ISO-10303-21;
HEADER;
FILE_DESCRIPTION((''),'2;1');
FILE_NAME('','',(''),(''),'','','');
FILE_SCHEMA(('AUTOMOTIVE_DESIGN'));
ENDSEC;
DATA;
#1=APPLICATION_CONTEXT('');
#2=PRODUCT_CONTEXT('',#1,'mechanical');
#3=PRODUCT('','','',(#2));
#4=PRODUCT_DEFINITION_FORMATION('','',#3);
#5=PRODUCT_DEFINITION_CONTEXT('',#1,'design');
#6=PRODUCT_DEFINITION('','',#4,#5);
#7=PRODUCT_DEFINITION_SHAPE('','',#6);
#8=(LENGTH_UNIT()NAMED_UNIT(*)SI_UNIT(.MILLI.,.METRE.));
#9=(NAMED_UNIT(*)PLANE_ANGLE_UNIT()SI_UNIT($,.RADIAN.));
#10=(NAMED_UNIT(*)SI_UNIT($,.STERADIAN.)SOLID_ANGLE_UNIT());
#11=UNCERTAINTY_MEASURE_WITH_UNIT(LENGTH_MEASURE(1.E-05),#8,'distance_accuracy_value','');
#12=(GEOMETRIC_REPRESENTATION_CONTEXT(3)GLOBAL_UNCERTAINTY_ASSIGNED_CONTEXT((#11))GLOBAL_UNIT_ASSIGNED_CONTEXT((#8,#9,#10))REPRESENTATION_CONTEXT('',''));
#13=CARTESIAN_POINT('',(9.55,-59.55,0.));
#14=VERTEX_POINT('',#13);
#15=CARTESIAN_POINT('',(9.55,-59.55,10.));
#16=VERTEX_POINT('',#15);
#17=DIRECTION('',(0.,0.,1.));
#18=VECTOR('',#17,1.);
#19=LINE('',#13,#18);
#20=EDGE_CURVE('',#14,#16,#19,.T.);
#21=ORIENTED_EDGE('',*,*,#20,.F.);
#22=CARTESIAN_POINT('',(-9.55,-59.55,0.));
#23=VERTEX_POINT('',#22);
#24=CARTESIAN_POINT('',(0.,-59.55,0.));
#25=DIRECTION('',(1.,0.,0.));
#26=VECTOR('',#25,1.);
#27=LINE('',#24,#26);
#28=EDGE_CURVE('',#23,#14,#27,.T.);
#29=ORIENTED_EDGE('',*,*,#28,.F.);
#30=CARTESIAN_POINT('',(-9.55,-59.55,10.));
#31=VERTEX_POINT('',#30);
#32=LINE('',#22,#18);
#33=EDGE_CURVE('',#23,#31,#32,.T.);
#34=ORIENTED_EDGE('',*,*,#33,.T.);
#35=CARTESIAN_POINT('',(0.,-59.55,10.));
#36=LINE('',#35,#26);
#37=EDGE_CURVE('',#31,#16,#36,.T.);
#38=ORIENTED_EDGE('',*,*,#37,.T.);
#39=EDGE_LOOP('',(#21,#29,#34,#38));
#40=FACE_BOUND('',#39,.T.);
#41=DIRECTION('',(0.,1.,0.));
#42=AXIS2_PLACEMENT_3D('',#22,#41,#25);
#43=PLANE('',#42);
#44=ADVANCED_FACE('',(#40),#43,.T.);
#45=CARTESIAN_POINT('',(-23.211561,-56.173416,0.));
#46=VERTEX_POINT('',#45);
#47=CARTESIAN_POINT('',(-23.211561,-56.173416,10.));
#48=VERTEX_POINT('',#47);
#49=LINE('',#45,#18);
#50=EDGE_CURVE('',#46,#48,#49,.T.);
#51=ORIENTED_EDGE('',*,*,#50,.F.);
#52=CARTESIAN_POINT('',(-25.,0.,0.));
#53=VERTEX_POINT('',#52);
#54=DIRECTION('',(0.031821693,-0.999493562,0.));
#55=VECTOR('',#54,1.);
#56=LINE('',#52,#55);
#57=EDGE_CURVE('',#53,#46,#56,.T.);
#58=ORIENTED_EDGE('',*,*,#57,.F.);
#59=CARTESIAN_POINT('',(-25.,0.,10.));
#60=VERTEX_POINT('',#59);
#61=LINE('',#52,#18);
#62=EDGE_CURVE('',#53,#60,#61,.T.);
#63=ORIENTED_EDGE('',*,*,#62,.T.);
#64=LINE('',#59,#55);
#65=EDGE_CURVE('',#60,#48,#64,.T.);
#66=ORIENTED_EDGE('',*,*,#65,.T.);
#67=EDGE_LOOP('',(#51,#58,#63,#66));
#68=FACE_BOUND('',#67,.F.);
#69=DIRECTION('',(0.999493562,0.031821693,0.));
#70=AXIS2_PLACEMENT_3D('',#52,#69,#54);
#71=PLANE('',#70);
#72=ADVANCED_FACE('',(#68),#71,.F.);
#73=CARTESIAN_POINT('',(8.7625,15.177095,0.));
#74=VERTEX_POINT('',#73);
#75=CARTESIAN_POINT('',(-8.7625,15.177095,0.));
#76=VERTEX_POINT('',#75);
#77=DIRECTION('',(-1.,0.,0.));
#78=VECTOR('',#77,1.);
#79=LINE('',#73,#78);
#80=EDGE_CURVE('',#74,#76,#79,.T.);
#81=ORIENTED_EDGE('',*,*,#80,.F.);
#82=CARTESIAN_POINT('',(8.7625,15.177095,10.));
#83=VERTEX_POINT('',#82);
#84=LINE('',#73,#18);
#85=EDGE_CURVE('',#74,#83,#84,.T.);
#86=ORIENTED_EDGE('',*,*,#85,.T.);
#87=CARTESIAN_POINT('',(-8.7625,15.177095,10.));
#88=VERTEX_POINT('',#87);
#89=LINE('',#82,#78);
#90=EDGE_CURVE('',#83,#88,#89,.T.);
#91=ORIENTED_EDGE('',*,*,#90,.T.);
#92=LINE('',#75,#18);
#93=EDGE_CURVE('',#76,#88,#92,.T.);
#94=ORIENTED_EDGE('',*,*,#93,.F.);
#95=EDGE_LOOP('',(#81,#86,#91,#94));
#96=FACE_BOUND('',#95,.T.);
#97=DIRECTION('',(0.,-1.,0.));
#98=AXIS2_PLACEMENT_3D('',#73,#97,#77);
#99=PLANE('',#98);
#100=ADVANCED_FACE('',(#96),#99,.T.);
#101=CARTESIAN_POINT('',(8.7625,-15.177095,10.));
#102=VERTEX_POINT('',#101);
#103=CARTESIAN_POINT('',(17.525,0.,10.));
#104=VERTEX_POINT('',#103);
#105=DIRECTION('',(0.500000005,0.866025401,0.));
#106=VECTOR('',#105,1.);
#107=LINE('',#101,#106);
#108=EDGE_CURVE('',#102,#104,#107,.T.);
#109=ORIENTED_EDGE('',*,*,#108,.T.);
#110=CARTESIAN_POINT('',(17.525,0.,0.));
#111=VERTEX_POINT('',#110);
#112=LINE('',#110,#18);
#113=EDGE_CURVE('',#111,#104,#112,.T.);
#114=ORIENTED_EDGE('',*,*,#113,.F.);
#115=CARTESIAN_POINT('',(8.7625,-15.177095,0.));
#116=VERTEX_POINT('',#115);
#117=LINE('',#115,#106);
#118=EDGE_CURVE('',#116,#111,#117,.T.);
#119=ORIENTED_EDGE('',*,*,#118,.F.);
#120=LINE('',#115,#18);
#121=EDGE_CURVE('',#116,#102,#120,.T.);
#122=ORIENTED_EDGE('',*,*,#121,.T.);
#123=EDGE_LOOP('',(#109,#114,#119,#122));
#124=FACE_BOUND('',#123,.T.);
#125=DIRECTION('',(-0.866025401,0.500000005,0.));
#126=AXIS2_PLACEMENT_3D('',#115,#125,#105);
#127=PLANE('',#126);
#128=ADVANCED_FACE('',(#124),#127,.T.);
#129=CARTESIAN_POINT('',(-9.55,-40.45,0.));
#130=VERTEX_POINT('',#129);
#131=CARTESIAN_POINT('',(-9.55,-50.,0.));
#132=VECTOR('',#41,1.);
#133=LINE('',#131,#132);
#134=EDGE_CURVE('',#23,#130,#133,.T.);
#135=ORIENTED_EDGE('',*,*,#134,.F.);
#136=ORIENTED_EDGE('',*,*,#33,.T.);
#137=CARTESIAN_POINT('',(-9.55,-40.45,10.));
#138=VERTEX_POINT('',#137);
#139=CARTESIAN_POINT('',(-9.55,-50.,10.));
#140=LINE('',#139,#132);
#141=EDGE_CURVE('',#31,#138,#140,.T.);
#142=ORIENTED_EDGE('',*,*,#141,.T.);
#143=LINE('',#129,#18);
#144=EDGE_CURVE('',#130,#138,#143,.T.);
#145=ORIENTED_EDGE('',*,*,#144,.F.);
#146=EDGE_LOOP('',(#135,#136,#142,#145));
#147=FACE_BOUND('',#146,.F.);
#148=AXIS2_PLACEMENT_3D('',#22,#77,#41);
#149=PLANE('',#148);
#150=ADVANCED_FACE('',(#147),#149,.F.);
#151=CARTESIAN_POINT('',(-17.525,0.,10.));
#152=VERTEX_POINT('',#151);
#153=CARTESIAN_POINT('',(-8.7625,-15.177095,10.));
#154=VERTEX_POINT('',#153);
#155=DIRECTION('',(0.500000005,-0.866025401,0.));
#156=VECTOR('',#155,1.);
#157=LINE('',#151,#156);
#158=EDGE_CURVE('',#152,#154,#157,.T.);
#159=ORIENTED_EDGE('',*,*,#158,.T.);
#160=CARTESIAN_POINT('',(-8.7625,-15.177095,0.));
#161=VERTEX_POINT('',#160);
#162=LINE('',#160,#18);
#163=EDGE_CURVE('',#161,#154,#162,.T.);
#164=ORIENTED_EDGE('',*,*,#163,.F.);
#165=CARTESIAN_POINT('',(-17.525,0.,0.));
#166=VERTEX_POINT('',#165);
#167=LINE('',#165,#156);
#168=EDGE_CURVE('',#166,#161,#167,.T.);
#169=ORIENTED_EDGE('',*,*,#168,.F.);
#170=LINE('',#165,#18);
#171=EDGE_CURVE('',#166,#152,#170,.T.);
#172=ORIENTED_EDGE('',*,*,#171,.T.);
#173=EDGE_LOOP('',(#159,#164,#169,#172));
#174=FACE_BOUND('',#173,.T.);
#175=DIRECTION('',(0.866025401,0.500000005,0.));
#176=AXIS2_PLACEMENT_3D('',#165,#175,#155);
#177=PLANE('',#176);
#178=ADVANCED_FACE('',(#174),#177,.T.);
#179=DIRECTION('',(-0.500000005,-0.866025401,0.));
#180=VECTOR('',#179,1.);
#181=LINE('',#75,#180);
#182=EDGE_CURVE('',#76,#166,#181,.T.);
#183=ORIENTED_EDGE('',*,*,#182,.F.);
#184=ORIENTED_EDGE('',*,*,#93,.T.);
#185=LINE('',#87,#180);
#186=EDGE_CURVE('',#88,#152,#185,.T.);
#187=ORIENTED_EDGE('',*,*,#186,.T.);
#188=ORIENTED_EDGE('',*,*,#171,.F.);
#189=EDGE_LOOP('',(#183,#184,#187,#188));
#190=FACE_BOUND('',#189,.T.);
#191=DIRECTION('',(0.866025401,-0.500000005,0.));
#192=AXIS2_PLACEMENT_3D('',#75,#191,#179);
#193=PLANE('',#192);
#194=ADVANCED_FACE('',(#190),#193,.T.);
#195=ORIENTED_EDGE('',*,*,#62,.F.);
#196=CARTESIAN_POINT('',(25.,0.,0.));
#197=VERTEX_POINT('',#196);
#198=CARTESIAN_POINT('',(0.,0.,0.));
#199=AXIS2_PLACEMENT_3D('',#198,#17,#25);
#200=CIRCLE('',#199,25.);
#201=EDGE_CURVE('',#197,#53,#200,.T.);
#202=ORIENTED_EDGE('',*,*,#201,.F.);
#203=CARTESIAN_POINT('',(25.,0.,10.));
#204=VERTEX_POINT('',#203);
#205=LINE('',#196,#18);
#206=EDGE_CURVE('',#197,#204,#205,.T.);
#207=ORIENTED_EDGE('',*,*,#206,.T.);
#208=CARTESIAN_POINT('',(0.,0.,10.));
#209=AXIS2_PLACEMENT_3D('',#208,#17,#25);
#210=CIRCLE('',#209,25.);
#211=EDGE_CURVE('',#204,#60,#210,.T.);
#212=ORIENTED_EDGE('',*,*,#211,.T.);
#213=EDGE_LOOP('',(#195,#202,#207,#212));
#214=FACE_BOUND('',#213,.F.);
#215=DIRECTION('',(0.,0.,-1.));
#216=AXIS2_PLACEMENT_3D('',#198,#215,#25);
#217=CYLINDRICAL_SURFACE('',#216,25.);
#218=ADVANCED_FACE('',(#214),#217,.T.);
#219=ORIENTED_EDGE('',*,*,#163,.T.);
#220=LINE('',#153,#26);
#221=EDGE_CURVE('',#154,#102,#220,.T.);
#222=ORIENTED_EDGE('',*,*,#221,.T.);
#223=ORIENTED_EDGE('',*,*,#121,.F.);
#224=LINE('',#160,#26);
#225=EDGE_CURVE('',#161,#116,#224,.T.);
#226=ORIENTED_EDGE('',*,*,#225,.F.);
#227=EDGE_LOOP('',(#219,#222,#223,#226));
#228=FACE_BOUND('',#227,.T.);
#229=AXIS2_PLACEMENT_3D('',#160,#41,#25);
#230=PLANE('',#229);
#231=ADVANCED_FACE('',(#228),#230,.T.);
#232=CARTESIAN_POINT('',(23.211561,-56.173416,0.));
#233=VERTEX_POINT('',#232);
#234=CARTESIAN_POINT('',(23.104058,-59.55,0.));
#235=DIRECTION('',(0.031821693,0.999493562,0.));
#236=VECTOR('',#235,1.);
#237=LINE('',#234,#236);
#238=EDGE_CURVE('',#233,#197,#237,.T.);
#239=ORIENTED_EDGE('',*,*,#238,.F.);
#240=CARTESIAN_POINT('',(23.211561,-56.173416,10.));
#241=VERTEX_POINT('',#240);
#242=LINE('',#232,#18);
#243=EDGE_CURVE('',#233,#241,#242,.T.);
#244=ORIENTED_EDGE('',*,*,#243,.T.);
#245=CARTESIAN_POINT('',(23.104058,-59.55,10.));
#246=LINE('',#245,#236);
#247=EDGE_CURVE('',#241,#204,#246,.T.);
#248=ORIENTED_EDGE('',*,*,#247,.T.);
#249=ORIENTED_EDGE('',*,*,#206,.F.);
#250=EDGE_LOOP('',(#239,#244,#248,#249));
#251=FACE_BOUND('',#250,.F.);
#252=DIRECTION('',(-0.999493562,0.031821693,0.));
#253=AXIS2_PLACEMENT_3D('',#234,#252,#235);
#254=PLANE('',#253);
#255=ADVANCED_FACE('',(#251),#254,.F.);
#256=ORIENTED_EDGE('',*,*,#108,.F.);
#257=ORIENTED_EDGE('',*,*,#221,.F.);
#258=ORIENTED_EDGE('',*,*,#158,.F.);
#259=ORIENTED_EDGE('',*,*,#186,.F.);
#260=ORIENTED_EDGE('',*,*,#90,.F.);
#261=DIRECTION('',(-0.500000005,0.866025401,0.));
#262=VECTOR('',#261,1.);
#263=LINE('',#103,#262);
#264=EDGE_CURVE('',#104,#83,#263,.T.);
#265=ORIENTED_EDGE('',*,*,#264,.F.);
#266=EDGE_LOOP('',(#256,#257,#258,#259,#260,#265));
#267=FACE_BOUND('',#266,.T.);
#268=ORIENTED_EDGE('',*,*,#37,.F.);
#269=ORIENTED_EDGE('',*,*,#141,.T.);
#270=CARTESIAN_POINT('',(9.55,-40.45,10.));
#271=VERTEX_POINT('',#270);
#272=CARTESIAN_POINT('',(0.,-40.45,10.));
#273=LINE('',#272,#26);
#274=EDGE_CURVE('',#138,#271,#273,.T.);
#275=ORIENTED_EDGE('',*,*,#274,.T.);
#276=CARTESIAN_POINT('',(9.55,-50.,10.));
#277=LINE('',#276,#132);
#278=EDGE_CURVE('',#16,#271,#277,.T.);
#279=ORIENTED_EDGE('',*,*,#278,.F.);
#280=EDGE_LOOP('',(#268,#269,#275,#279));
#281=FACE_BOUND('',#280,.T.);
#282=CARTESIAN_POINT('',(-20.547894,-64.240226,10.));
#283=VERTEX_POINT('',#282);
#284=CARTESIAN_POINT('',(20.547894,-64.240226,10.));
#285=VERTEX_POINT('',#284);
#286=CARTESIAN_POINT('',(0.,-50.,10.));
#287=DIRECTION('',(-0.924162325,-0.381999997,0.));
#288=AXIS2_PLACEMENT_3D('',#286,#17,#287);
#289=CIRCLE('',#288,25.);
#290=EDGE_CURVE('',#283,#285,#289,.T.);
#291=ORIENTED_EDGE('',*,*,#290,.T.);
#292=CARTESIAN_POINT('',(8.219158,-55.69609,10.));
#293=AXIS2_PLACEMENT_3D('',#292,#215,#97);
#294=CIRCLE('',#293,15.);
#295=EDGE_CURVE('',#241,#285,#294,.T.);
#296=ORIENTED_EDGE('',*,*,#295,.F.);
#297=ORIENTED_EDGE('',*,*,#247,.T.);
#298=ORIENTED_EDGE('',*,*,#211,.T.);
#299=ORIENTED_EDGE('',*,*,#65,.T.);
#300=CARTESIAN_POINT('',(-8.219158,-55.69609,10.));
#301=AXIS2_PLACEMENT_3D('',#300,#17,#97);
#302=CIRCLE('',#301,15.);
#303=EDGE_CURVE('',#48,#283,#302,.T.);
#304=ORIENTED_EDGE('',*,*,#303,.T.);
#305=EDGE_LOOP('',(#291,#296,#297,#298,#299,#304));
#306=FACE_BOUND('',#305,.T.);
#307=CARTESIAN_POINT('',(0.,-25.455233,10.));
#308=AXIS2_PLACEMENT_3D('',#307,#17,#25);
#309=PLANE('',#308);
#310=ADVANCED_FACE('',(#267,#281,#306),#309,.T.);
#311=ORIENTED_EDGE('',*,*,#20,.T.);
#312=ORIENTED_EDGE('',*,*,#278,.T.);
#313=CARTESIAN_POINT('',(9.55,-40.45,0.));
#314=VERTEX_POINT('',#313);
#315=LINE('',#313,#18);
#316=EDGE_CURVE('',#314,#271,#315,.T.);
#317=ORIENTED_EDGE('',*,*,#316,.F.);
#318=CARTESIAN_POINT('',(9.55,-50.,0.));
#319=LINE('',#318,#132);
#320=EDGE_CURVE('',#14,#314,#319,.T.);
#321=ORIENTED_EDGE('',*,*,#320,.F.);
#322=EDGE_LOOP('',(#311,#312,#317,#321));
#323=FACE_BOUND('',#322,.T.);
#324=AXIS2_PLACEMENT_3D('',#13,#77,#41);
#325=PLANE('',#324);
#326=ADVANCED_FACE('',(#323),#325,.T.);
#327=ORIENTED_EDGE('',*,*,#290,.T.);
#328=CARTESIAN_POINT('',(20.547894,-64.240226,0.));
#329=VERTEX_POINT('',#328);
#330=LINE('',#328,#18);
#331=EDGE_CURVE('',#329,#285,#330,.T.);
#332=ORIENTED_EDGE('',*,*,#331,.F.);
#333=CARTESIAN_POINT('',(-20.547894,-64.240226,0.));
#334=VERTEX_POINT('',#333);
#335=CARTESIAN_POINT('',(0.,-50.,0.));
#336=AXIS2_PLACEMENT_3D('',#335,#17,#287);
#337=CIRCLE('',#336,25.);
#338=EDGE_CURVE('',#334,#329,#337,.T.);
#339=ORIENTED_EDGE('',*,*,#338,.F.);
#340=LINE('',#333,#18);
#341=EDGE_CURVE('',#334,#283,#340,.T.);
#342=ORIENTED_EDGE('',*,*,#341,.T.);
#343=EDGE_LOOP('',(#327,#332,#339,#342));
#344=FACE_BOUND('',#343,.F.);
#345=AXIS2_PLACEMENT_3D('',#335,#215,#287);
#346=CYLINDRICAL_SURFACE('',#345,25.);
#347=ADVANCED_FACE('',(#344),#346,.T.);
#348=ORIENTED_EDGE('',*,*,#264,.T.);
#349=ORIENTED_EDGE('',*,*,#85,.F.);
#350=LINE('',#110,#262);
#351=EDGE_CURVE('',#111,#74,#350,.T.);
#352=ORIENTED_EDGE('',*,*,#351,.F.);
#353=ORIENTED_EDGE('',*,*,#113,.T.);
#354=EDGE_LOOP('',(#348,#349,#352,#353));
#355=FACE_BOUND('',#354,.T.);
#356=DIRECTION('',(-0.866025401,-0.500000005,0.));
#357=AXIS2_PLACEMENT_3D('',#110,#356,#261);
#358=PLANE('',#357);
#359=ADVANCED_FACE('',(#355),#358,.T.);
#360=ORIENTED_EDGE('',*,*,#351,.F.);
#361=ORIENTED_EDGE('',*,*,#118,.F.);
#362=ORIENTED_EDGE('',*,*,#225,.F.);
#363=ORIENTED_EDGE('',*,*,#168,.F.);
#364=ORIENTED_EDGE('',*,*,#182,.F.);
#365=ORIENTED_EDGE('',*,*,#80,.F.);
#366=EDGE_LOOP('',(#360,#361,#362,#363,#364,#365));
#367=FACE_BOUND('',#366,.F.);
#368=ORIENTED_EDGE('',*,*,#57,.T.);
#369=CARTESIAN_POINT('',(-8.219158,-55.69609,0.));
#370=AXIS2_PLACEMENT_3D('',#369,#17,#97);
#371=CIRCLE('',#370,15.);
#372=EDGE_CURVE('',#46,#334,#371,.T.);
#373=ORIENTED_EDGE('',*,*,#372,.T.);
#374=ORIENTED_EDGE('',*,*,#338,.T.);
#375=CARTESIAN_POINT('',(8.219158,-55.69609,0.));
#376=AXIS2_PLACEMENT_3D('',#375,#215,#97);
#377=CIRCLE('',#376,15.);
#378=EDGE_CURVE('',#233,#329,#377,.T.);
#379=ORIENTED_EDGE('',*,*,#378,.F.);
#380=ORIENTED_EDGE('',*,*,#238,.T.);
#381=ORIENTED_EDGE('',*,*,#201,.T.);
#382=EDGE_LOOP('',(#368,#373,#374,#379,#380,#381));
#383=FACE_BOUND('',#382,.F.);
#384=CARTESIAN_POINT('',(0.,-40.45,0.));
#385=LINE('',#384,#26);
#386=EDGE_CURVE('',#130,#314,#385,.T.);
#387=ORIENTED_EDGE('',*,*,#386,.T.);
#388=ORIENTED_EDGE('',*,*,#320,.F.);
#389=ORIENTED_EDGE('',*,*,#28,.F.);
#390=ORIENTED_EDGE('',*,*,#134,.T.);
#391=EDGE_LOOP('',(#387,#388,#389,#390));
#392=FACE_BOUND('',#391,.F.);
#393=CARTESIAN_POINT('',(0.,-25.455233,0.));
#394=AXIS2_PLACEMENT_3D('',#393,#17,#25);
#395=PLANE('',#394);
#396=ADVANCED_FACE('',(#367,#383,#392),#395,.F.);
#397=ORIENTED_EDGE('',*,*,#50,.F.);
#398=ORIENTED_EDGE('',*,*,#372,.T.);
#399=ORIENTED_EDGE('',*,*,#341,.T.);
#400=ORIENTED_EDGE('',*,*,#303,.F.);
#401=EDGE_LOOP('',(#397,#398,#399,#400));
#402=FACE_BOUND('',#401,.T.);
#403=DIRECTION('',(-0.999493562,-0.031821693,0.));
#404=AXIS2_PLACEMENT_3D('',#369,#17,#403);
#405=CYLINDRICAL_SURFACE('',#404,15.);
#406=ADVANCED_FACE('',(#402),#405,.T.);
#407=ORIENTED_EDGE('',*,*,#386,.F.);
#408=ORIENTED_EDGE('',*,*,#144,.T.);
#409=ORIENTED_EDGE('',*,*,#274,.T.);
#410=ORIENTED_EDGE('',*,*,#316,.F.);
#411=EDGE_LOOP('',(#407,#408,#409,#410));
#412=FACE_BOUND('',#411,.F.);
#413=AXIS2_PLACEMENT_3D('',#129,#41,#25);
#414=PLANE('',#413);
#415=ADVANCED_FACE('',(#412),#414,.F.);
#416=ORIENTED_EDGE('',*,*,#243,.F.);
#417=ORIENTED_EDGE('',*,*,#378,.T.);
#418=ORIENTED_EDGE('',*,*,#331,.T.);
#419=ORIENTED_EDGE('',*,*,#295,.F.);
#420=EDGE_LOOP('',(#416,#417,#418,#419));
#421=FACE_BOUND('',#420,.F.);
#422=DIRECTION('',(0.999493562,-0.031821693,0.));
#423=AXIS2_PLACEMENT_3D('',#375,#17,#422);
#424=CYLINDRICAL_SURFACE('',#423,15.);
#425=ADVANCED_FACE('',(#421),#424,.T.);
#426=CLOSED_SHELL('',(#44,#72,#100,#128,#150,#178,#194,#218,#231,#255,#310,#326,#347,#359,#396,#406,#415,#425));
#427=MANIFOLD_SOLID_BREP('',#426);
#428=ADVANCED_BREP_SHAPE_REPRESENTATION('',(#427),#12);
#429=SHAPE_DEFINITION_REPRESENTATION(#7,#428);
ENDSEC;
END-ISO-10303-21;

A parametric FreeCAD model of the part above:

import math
import FreeCAD as App
import Part
import Sketcher

V = App.Vector
Q = App.Units.Quantity


def edges_at(feature, points):
    """Names of the edges that pass closest to the given points."""
    edges = feature.Shape.Edges
    near = lambda p: min(range(len(edges)), key=lambda i: edges[i].distToShape(Part.Vertex(*p))[0])
    return sorted({f"Edge{near(p) + 1}" for p in points})

doc = App.newDocument("Part")
body = doc.addObject("PartDesign::Body", "Body")

sketch1 = body.newObject("Sketcher::SketchObject", "Sketch")
sketch1.AttachmentSupport = (doc.getObject("XY_Plane"), [""])
sketch1.MapMode = "FlatFace"
sketch1.addGeometry(Part.ArcOfCircle(Part.Circle(V(0, 0, 0), V(0, 0, 1), 25), math.radians(0), math.radians(180)), False)
sketch1.addGeometry(Part.LineSegment(V(-25, 0, 0), V(-23, -60, 0)), False)
sketch1.addGeometry(Part.ArcOfCircle(Part.Circle(V(0, -50, 0), V(0, 0, 1), 25), math.radians(-158), math.radians(-22)), False)
sketch1.addGeometry(Part.LineSegment(V(23, -60, 0), V(25, 0, 0)), False)
sketch1.addGeometry(Part.LineSegment(V(10, -60, 0), V(-10, -60, 0)), False)
sketch1.addGeometry(Part.LineSegment(V(-10, -60, 0), V(-10, -40, 0)), False)
sketch1.addGeometry(Part.LineSegment(V(-10, -40, 0), V(10, -40, 0)), False)
sketch1.addGeometry(Part.LineSegment(V(10, -40, 0), V(10, -60, 0)), False)
sketch1.addGeometry(Part.LineSegment(V(-9, -15, 0), V(-18, 0, 0)), False)
sketch1.addGeometry(Part.LineSegment(V(-18, 0, 0), V(-9, 15, 0)), False)
sketch1.addGeometry(Part.LineSegment(V(-9, 15, 0), V(9, 15, 0)), False)
sketch1.addGeometry(Part.LineSegment(V(9, 15, 0), V(18, 0, 0)), False)
sketch1.addGeometry(Part.LineSegment(V(18, 0, 0), V(9, -15, 0)), False)
sketch1.addGeometry(Part.LineSegment(V(9, -15, 0), V(-9, -15, 0)), False)
sketch1.addConstraint(Sketcher.Constraint("Coincident", 0, 2, 1, 1))
sketch1.addConstraint(Sketcher.Constraint("Coincident", 1, 2, 2, 1))
sketch1.addConstraint(Sketcher.Constraint("Coincident", 2, 2, 3, 1))
sketch1.addConstraint(Sketcher.Constraint("Coincident", 3, 2, 0, 1))
sketch1.addConstraint(Sketcher.Constraint("Coincident", 4, 2, 5, 1))
sketch1.addConstraint(Sketcher.Constraint("Coincident", 5, 2, 6, 1))
sketch1.addConstraint(Sketcher.Constraint("Coincident", 6, 2, 7, 1))
sketch1.addConstraint(Sketcher.Constraint("Coincident", 7, 2, 4, 1))
sketch1.addConstraint(Sketcher.Constraint("Coincident", 8, 2, 9, 1))
sketch1.addConstraint(Sketcher.Constraint("Coincident", 9, 2, 10, 1))
sketch1.addConstraint(Sketcher.Constraint("Coincident", 10, 2, 11, 1))
sketch1.addConstraint(Sketcher.Constraint("Coincident", 11, 2, 12, 1))
sketch1.addConstraint(Sketcher.Constraint("Coincident", 12, 2, 13, 1))
sketch1.addConstraint(Sketcher.Constraint("Coincident", 13, 2, 8, 1))
sketch1.addConstraint(Sketcher.Constraint("Horizontal", 4))
sketch1.addConstraint(Sketcher.Constraint("Vertical", 5))
sketch1.addConstraint(Sketcher.Constraint("Horizontal", 6))
sketch1.addConstraint(Sketcher.Constraint("Vertical", 7))
sketch1.addConstraint(Sketcher.Constraint("Horizontal", 10))
sketch1.addConstraint(Sketcher.Constraint("Horizontal", 13))
sketch1.addConstraint(Sketcher.Constraint("Coincident", 0, 3, -1, 1))
sketch1.addConstraint(Sketcher.Constraint("Equal", 0, 2))
sketch1.addConstraint(Sketcher.Constraint("Symmetric", 8, 2, 11, 2, -1, 1))
sketch1.addConstraint(Sketcher.Constraint("Symmetric", 9, 2, 12, 2, -1, 1))
sketch1.addConstraint(Sketcher.Constraint("Symmetric", 1, 2, 2, 2, -2))
sketch1.addConstraint(Sketcher.Constraint("PointOnObject", 0, 2, -1))
sketch1.addConstraint(Sketcher.Constraint("PointOnObject", 3, 2, -1))
sketch1.addConstraint(Sketcher.Constraint("PointOnObject", 8, 2, -1))
sketch1.addConstraint(Sketcher.Constraint("Parallel", 8, 11))
sketch1.addConstraint(Sketcher.Constraint("Horizontal", 2, 2, 4, 2))
sketch1.addConstraint(Sketcher.Constraint("Vertical", 10, 2, 12, 2))
sketch1.addConstraint(Sketcher.Constraint("Equal", 6, 5))
sketch1.addConstraint(Sketcher.Constraint("Radius", 0, 25.0))
sketch1.addConstraint(Sketcher.Constraint("Angle", 8, Q("120 deg")))
sketch1.addConstraint(Sketcher.Constraint("DistanceX", 4, 2, 4, 1, 19.1))
sketch1.addConstraint(Sketcher.Constraint("DistanceY", 2, 3, -1, 1, 50.0))
sketch1.addConstraint(Sketcher.Constraint("DistanceX", 10, 1, 10, 2, 17.525))
sketch1.addConstraint(Sketcher.Constraint("DistanceY", 1, 2, -1, 1, 59.55))
sketch1.addConstraint(Sketcher.Constraint("DistanceX", 4, 2, -1, 1, 9.55))
sketch1.addConstraint(Sketcher.Constraint("DistanceX", 8, 2, 11, 2, 35.05))
pad1 = body.newObject("PartDesign::Pad", "Pad")
pad1.Profile = sketch1
pad1.Length = 10
doc.recompute()

fillet = body.newObject("PartDesign::Fillet", "Fillet")
fillet.Base = (pad1, edges_at(pad1, [
    (-25, 0, 5),
    (-23.104, -59.55, 5),
    (23.104, -59.55, 5),
    (25, 0, 5),
]))
fillet.Radius = 15

doc.recompute()
